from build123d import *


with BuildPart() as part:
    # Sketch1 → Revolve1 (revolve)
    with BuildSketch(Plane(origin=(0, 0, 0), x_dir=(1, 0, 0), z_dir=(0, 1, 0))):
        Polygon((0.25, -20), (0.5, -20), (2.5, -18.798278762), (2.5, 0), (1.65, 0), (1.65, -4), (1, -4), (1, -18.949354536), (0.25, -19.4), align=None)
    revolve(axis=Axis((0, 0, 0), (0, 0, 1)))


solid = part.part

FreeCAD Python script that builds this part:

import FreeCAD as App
import Part
import Sketcher
from FreeCAD import Vector
Q = App.Units.Quantity


def add_polygon(sketch, points):
    """Adds a closed chain of lines whose ends are joined by coincident constraints."""
    first, n = sketch.GeometryCount, len(points)
    for a, b in zip(points, points[1:] + points[:1]):
        sketch.addGeometry(Part.LineSegment(App.Vector(*a, 0), App.Vector(*b, 0)), False)
    for i in range(n):
        sketch.addConstraint(Sketcher.Constraint("Coincident", first + i, 2, first + (i + 1) % n, 1))

doc = App.newDocument("Part")
params = doc.addObject("Spreadsheet::Sheet", "Params")
for row, (alias, value) in enumerate([
    ("sketch1_height", "4 mm"),
    ("sketch1_height2", "0.6 mm"),
    ("sketch1_width", "0.25 mm"),
    ("sketch1_width2", "0.85 mm"),
    ("sketch1_width3", "0.65 mm"),
    ("revolution_angle", "360 deg"),
], start=1):
    params.set(f"A{row}", alias)
    params.set(f"B{row}", "=" + value)
    params.setAlias(f"B{row}", alias)

body = doc.addObject("PartDesign::Body", "Body")

sketch1 = body.newObject("Sketcher::SketchObject", "Sketch")
sketch1.AttachmentSupport = (doc.getObject("XZ_Plane"), [""])
sketch1.MapMode = "FlatFace"
add_polygon(sketch1, [(0.25, 20), (0.5, 20), (2.5, 18.798279), (2.5, 0), (1.65, 0), (1.65, 4), (1, 4), (1, 18.949355), (0.25, 19.4)])
sketch1.addConstraint(Sketcher.Constraint("Horizontal", 0))
sketch1.addConstraint(Sketcher.Constraint("Vertical", 2))
sketch1.addConstraint(Sketcher.Constraint("Horizontal", 3))
sketch1.addConstraint(Sketcher.Constraint("Vertical", 4))
sketch1.addConstraint(Sketcher.Constraint("Horizontal", 5))
sketch1.addConstraint(Sketcher.Constraint("Vertical", 6))
sketch1.addConstraint(Sketcher.Constraint("Vertical", 8))
sketch1.addConstraint(Sketcher.Constraint("PointOnObject", 2, 2, -1))
sketch1.addConstraint(Sketcher.Constraint("Parallel", 1, 7))
sketch1.addConstraint(Sketcher.Constraint("DistanceY", 4, 1, 4, 2, Q("4 mm")))
sketch1.addConstraint(Sketcher.Constraint("Angle", 1, Q("-31 deg")))
sketch1.addConstraint(Sketcher.Constraint("DistanceY", 8, 1, 8, 2, Q("0.6 mm")))
sketch1.addConstraint(Sketcher.Constraint("DistanceY", -1, 1, 0, 2, Q("20 mm")))
sketch1.addConstraint(Sketcher.Constraint("DistanceX", -1, 1, 5, 2, Q("1 mm")))
sketch1.addConstraint(Sketcher.Constraint("DistanceX", 0, 2, 1, 2, Q("2 mm")))
sketch1.addConstraint(Sketcher.Constraint("DistanceX", 0, 1, 0, 2, Q("0.25 mm")))
sketch1.addConstraint(Sketcher.Constraint("DistanceX", 3, 2, 3, 1, Q("0.85 mm")))
sketch1.addConstraint(Sketcher.Constraint("DistanceX", 5, 2, 5, 1, Q("0.65 mm")))
sketch1.setExpression("Constraints[18]", "Params.sketch1_height")
sketch1.setExpression("Constraints[20]", "Params.sketch1_height2")
sketch1.setExpression("Constraints[24]", "Params.sketch1_width")
sketch1.setExpression("Constraints[25]", "Params.sketch1_width2")
sketch1.setExpression("Constraints[26]", "Params.sketch1_width3")
revolution = body.newObject("PartDesign::Revolution", "Revolution")
revolution.Profile = sketch1
revolution.ReferenceAxis = (sketch1, ["V_Axis"])
revolution.setExpression("Angle", "Params.revolution_angle")

doc.recompute()
